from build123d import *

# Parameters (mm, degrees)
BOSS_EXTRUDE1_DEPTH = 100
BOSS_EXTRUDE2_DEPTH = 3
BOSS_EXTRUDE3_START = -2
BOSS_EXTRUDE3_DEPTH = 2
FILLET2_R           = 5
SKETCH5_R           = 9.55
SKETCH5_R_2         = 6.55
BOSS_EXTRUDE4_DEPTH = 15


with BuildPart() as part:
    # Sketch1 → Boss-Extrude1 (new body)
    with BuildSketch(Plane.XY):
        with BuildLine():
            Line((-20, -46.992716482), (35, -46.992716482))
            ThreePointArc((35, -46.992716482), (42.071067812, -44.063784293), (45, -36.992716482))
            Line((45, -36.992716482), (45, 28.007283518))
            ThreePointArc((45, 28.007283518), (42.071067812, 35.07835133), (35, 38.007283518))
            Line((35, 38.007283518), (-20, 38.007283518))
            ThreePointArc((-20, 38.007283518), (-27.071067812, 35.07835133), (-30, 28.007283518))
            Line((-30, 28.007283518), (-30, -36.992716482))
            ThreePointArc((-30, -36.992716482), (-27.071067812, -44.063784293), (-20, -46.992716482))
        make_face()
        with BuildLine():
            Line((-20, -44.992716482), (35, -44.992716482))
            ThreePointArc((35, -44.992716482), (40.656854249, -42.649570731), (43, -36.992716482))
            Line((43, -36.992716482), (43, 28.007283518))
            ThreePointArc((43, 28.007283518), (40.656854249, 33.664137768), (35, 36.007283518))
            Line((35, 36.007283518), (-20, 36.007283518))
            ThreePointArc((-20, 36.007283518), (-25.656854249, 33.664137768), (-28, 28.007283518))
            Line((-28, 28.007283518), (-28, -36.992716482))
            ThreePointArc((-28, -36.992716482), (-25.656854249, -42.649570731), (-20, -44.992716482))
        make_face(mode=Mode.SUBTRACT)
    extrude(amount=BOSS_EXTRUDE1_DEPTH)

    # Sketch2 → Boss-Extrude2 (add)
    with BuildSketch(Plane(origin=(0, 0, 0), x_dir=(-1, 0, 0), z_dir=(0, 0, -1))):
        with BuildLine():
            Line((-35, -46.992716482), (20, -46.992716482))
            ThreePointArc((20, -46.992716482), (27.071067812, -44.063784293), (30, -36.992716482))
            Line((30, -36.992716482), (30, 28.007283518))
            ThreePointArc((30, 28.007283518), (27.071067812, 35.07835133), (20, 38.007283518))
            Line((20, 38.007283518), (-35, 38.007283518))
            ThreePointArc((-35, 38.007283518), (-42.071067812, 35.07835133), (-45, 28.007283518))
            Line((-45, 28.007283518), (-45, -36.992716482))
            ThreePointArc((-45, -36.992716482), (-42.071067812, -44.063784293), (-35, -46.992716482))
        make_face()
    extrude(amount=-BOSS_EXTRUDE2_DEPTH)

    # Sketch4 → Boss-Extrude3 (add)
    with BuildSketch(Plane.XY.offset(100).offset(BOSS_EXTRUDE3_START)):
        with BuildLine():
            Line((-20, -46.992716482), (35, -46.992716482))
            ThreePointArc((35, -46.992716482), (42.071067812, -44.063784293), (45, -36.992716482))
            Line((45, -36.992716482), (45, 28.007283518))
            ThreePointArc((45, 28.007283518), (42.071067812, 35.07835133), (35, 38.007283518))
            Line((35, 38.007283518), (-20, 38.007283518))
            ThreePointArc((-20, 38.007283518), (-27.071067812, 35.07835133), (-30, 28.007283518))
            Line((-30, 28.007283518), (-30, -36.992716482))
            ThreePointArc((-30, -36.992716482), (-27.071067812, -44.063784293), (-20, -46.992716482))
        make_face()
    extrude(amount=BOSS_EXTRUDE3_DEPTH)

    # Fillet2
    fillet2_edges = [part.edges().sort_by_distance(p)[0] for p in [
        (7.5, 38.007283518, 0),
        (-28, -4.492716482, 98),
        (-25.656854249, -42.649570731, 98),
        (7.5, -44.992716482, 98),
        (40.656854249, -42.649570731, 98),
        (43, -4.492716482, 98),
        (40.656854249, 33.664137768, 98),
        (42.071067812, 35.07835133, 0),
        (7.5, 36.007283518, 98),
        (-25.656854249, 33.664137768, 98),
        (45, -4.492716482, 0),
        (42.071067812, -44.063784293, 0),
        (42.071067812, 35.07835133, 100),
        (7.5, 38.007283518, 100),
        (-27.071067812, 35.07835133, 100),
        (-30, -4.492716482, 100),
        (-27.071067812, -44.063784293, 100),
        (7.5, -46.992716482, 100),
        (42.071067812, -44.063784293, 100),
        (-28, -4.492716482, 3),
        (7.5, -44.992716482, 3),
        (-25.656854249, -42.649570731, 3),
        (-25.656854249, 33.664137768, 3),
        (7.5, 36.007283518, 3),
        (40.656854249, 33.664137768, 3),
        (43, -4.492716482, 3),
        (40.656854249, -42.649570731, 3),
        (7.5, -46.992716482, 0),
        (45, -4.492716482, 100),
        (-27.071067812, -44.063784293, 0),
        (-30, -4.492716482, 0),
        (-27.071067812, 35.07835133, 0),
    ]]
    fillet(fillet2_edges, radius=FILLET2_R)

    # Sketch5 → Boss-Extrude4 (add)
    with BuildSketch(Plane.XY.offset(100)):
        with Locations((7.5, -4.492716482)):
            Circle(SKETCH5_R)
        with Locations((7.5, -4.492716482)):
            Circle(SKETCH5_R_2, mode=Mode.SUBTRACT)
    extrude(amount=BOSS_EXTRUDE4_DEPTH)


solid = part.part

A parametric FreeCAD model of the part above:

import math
import FreeCAD as App
import Part
import Sketcher
from FreeCAD import Vector
Q = App.Units.Quantity


def edges_at(feature, points):
    """Names of the edges that pass closest to the given points."""
    edges = feature.Shape.Edges
    near = lambda p: min(range(len(edges)), key=lambda i: edges[i].distToShape(Part.Vertex(*p))[0])
    return sorted({f"Edge{near(p) + 1}" for p in points})

doc = App.newDocument("Part")
body = doc.addObject("PartDesign::Body", "Body")

# Sketch on XY plane
sketch1 = body.newObject("Sketcher::SketchObject", "Sketch")
sketch1.AttachmentSupport = (doc.getObject("XY_Plane"), [""])
sketch1.MapMode = "FlatFace"
sketch1.addGeometry([
    Part.LineSegment(Vector(-20, -47, 0), Vector(35, -47, 0)),  # 0
    Part.ArcOfCircle(Part.Circle(Vector(35, -37, 0), Vector(0, 0, 1), 10), math.radians(-90), math.radians(0)),  # 1
    Part.LineSegment(Vector(45, -37, 0), Vector(45, 28, 0)),  # 2
    Part.ArcOfCircle(Part.Circle(Vector(35, 28, 0), Vector(0, 0, 1), 10), math.radians(0), math.radians(90)),  # 3
    Part.LineSegment(Vector(35, 38, 0), Vector(-20, 38, 0)),  # 4
    Part.ArcOfCircle(Part.Circle(Vector(-20, 28, 0), Vector(0, 0, 1), 10), math.radians(90), math.radians(180)),  # 5
    Part.LineSegment(Vector(-30, 28, 0), Vector(-30, -37, 0)),  # 6
    Part.ArcOfCircle(Part.Circle(Vector(-20, -37, 0), Vector(0, 0, 1), 10), math.radians(-180), math.radians(-90)),  # 7
    Part.LineSegment(Vector(35, -45, 0), Vector(-20, -45, 0)),  # 8
    Part.ArcOfCircle(Part.Circle(Vector(-20, -37, 0), Vector(0, 0, 1), 8), math.radians(-180), math.radians(-90)),  # 9
    Part.LineSegment(Vector(-28, -37, 0), Vector(-28, 28, 0)),  # 10
    Part.ArcOfCircle(Part.Circle(Vector(-20, 28, 0), Vector(0, 0, 1), 8), math.radians(90), math.radians(180)),  # 11
    Part.LineSegment(Vector(-20, 36, 0), Vector(35, 36, 0)),  # 12
    Part.ArcOfCircle(Part.Circle(Vector(35, 28, 0), Vector(0, 0, 1), 8), math.radians(0), math.radians(90)),  # 13
    Part.LineSegment(Vector(43, 28, 0), Vector(43, -37, 0)),  # 14
    Part.ArcOfCircle(Part.Circle(Vector(35, -37, 0), Vector(0, 0, 1), 8), math.radians(-90), math.radians(0)),  # 15
], False)
sketch1.addConstraint([
    Sketcher.Constraint("Tangent", 0, 2, 1, 1),
    Sketcher.Constraint("Tangent", 1, 2, 2, 1),
    Sketcher.Constraint("Tangent", 2, 2, 3, 1),
    Sketcher.Constraint("Tangent", 3, 2, 4, 1),
    Sketcher.Constraint("Tangent", 4, 2, 5, 1),
    Sketcher.Constraint("Tangent", 5, 2, 6, 1),
    Sketcher.Constraint("Tangent", 6, 2, 7, 1),
    Sketcher.Constraint("Tangent", 7, 2, 0, 1),
    Sketcher.Constraint("Tangent", 8, 2, 9, 2),
    Sketcher.Constraint("Tangent", 9, 1, 10, 1),
    Sketcher.Constraint("Tangent", 10, 2, 11, 2),
    Sketcher.Constraint("Tangent", 11, 1, 12, 1),
    Sketcher.Constraint("Tangent", 12, 2, 13, 2),
    Sketcher.Constraint("Tangent", 13, 1, 14, 1),
    Sketcher.Constraint("Tangent", 14, 2, 15, 2),
    Sketcher.Constraint("Tangent", 15, 1, 8, 1),
    Sketcher.Constraint("Horizontal", 0),
    Sketcher.Constraint("Vertical", 2),
    Sketcher.Constraint("Horizontal", 4),
    Sketcher.Constraint("Vertical", 6),
    Sketcher.Constraint("Horizontal", 8),
    Sketcher.Constraint("Vertical", 10),
    Sketcher.Constraint("Horizontal", 12),
    Sketcher.Constraint("Vertical", 14),
    Sketcher.Constraint("Coincident", 9, 3, 7, 3),
    Sketcher.Constraint("Coincident", 11, 3, 5, 3),
    Sketcher.Constraint("Coincident", 13, 3, 3, 3),
    Sketcher.Constraint("Equal", 1, 3),
    Sketcher.Constraint("Equal", 3, 5),
    Sketcher.Constraint("Equal", 5, 7),
    Sketcher.Constraint("Equal", 13, 15),
    Sketcher.Constraint("Radius", 1, Q("10 mm")),
    Sketcher.Constraint("Radius", 9, Q("8 mm")),
    Sketcher.Constraint("DistanceX", 0, 1, 0, 2, Q("55 mm")),
    Sketcher.Constraint("DistanceY", 2, 1, 2, 2, Q("65 mm")),
    Sketcher.Constraint("DistanceX", -1, 1, 1, 3, Q("35 mm")),
    Sketcher.Constraint("DistanceY", 1, 3, -1, 1, Q("36.992716 mm")),
])
pad1 = body.newObject("PartDesign::Pad", "Pad")
pad1.Profile = sketch1
pad1.Length = 100

# Sketch on XY plane
sketch2 = body.newObject("Sketcher::SketchObject", "Sketch001")
sketch2.AttachmentSupport = (doc.getObject("XY_Plane"), [""])
sketch2.MapMode = "FlatFace"
sketch2.addGeometry([
    Part.LineSegment(Vector(35, -47, 0), Vector(-20, -47, 0)),  # 0
    Part.ArcOfCircle(Part.Circle(Vector(-20, -37, 0), Vector(0, 0, 1), 10), math.radians(-180), math.radians(-90)),  # 1
    Part.LineSegment(Vector(-30, -37, 0), Vector(-30, 28, 0)),  # 2
    Part.ArcOfCircle(Part.Circle(Vector(-20, 28, 0), Vector(0, 0, 1), 10), math.radians(90), math.radians(180)),  # 3
    Part.LineSegment(Vector(-20, 38, 0), Vector(35, 38, 0)),  # 4
    Part.ArcOfCircle(Part.Circle(Vector(35, 28, 0), Vector(0, 0, 1), 10), math.radians(0), math.radians(90)),  # 5
    Part.LineSegment(Vector(45, 28, 0), Vector(45, -37, 0)),  # 6
    Part.ArcOfCircle(Part.Circle(Vector(35, -37, 0), Vector(0, 0, 1), 10), math.radians(-90), math.radians(0)),  # 7
], False)
sketch2.addConstraint([
    Sketcher.Constraint("Tangent", 0, 2, 1, 2),
    Sketcher.Constraint("Tangent", 1, 1, 2, 1),
    Sketcher.Constraint("Tangent", 2, 2, 3, 2),
    Sketcher.Constraint("Tangent", 3, 1, 4, 1),
    Sketcher.Constraint("Tangent", 4, 2, 5, 2),
    Sketcher.Constraint("Tangent", 5, 1, 6, 1),
    Sketcher.Constraint("Tangent", 6, 2, 7, 2),
    Sketcher.Constraint("Tangent", 7, 1, 0, 1),
    Sketcher.Constraint("Horizontal", 0),
    Sketcher.Constraint("Vertical", 2),
    Sketcher.Constraint("Horizontal", 4),
    Sketcher.Constraint("Vertical", 6),
    Sketcher.Constraint("Equal", 1, 3),
    Sketcher.Constraint("Equal", 3, 5),
    Sketcher.Constraint("Equal", 5, 7),
    Sketcher.Constraint("Radius", 1, Q("10 mm")),
    Sketcher.Constraint("DistanceX", 0, 2, 0, 1, Q("55 mm")),
    Sketcher.Constraint("DistanceY", 2, 1, 2, 2, Q("65 mm")),
    Sketcher.Constraint("DistanceX", 1, 3, -1, 1, Q("20 mm")),
    Sketcher.Constraint("DistanceY", 1, 3, -1, 1, Q("36.992716 mm")),
])
pad2 = body.newObject("PartDesign::Pad", "Pad001")
pad2.Profile = sketch2
pad2.Length = 3

# Sketch on XY plane
sketch3 = body.newObject("Sketcher::SketchObject", "Sketch002")
sketch3.AttachmentSupport = (doc.getObject("XY_Plane"), [""])
sketch3.MapMode = "FlatFace"
sketch3.AttachmentOffset = App.Placement(Vector(0, 0, 98), App.Rotation())
sketch3.addGeometry([
    Part.LineSegment(Vector(-20, -47, 0), Vector(35, -47, 0)),  # 0
    Part.ArcOfCircle(Part.Circle(Vector(35, -37, 0), Vector(0, 0, 1), 10), math.radians(-90), math.radians(0)),  # 1
    Part.LineSegment(Vector(45, -37, 0), Vector(45, 28, 0)),  # 2
    Part.ArcOfCircle(Part.Circle(Vector(35, 28, 0), Vector(0, 0, 1), 10), math.radians(0), math.radians(90)),  # 3
    Part.LineSegment(Vector(35, 38, 0), Vector(-20, 38, 0)),  # 4
    Part.ArcOfCircle(Part.Circle(Vector(-20, 28, 0), Vector(0, 0, 1), 10), math.radians(90), math.radians(180)),  # 5
    Part.LineSegment(Vector(-30, 28, 0), Vector(-30, -37, 0)),  # 6
    Part.ArcOfCircle(Part.Circle(Vector(-20, -37, 0), Vector(0, 0, 1), 10), math.radians(-180), math.radians(-90)),  # 7
], False)
sketch3.addConstraint([
    Sketcher.Constraint("Tangent", 0, 2, 1, 1),
    Sketcher.Constraint("Tangent", 1, 2, 2, 1),
    Sketcher.Constraint("Tangent", 2, 2, 3, 1),
    Sketcher.Constraint("Tangent", 3, 2, 4, 1),
    Sketcher.Constraint("Tangent", 4, 2, 5, 1),
    Sketcher.Constraint("Tangent", 5, 2, 6, 1),
    Sketcher.Constraint("Tangent", 6, 2, 7, 1),
    Sketcher.Constraint("Tangent", 7, 2, 0, 1),
    Sketcher.Constraint("Horizontal", 0),
    Sketcher.Constraint("Vertical", 2),
    Sketcher.Constraint("Horizontal", 4),
    Sketcher.Constraint("Vertical", 6),
    Sketcher.Constraint("Equal", 1, 3),
    Sketcher.Constraint("Equal", 3, 5),
    Sketcher.Constraint("Equal", 5, 7),
    Sketcher.Constraint("Radius", 1, Q("10 mm")),
    Sketcher.Constraint("DistanceX", 0, 1, 0, 2, Q("55 mm")),
    Sketcher.Constraint("DistanceY", 2, 1, 2, 2, Q("65 mm")),
    Sketcher.Constraint("DistanceX", -1, 1, 1, 3, Q("35 mm")),
    Sketcher.Constraint("DistanceY", 1, 3, -1, 1, Q("36.992716 mm")),
])
pad3 = body.newObject("PartDesign::Pad", "Pad002")
pad3.Profile = sketch3
pad3.Length = 2
doc.recompute()

fillet = body.newObject("PartDesign::Fillet", "Fillet")
fillet.Base = (pad3, edges_at(pad3, [
    (7.5, 38.007, 0),
    (-28, -4.493, 98),
    (-25.657, -42.65, 98),
    (7.5, -44.993, 98),
    (40.657, -42.65, 98),
    (43, -4.493, 98),
    (40.657, 33.664, 98),
    (42.071, 35.078, 0),
    (7.5, 36.007, 98),
    (-25.657, 33.664, 98),
    (45, -4.493, 0),
    (42.071, -44.064, 0),
    (42.071, 35.078, 100),
    (7.5, 38.007, 100),
    (-27.071, 35.078, 100),
    (-30, -4.493, 100),
    (-27.071, -44.064, 100),
    (7.5, -46.993, 100),
    (42.071, -44.064, 100),
    (-28, -4.493, 3),
    (7.5, -44.993, 3),
    (-25.657, -42.65, 3),
    (-25.657, 33.664, 3),
    (7.5, 36.007, 3),
    (40.657, 33.664, 3),
    (43, -4.493, 3),
    (40.657, -42.65, 3),
    (7.5, -46.993, 0),
    (45, -4.493, 100),
    (-27.071, -44.064, 0),
    (-30, -4.493, 0),
    (-27.071, 35.078, 0),
]))
fillet.Radius = 5

# Sketch on XY plane
sketch4 = body.newObject("Sketcher::SketchObject", "Sketch003")
sketch4.AttachmentSupport = (doc.getObject("XY_Plane"), [""])
sketch4.MapMode = "FlatFace"
sketch4.AttachmentOffset = App.Placement(Vector(0, 0, 100), App.Rotation())
sketch4.addGeometry([
    Part.Circle(Vector(8, -4, 0), Vector(0, 0, 1), 10),
    Part.Circle(Vector(8, -4, 0), Vector(0, 0, 1), 7),
], False)
sketch4.addConstraint([
    Sketcher.Constraint("Coincident", 1, 3, 0, 3),
    Sketcher.Constraint("Diameter", 0, Q("19.1 mm")),
    Sketcher.Constraint("Diameter", 1, Q("13.1 mm")),
    Sketcher.Constraint("DistanceX", -1, 1, 0, 3, Q("7.5 mm")),
    Sketcher.Constraint("DistanceY", 0, 3, -1, 1, Q("4.492716 mm")),
])
pad4 = body.newObject("PartDesign::Pad", "Pad003")
pad4.Profile = sketch4
pad4.Length = 15

doc.recompute()
